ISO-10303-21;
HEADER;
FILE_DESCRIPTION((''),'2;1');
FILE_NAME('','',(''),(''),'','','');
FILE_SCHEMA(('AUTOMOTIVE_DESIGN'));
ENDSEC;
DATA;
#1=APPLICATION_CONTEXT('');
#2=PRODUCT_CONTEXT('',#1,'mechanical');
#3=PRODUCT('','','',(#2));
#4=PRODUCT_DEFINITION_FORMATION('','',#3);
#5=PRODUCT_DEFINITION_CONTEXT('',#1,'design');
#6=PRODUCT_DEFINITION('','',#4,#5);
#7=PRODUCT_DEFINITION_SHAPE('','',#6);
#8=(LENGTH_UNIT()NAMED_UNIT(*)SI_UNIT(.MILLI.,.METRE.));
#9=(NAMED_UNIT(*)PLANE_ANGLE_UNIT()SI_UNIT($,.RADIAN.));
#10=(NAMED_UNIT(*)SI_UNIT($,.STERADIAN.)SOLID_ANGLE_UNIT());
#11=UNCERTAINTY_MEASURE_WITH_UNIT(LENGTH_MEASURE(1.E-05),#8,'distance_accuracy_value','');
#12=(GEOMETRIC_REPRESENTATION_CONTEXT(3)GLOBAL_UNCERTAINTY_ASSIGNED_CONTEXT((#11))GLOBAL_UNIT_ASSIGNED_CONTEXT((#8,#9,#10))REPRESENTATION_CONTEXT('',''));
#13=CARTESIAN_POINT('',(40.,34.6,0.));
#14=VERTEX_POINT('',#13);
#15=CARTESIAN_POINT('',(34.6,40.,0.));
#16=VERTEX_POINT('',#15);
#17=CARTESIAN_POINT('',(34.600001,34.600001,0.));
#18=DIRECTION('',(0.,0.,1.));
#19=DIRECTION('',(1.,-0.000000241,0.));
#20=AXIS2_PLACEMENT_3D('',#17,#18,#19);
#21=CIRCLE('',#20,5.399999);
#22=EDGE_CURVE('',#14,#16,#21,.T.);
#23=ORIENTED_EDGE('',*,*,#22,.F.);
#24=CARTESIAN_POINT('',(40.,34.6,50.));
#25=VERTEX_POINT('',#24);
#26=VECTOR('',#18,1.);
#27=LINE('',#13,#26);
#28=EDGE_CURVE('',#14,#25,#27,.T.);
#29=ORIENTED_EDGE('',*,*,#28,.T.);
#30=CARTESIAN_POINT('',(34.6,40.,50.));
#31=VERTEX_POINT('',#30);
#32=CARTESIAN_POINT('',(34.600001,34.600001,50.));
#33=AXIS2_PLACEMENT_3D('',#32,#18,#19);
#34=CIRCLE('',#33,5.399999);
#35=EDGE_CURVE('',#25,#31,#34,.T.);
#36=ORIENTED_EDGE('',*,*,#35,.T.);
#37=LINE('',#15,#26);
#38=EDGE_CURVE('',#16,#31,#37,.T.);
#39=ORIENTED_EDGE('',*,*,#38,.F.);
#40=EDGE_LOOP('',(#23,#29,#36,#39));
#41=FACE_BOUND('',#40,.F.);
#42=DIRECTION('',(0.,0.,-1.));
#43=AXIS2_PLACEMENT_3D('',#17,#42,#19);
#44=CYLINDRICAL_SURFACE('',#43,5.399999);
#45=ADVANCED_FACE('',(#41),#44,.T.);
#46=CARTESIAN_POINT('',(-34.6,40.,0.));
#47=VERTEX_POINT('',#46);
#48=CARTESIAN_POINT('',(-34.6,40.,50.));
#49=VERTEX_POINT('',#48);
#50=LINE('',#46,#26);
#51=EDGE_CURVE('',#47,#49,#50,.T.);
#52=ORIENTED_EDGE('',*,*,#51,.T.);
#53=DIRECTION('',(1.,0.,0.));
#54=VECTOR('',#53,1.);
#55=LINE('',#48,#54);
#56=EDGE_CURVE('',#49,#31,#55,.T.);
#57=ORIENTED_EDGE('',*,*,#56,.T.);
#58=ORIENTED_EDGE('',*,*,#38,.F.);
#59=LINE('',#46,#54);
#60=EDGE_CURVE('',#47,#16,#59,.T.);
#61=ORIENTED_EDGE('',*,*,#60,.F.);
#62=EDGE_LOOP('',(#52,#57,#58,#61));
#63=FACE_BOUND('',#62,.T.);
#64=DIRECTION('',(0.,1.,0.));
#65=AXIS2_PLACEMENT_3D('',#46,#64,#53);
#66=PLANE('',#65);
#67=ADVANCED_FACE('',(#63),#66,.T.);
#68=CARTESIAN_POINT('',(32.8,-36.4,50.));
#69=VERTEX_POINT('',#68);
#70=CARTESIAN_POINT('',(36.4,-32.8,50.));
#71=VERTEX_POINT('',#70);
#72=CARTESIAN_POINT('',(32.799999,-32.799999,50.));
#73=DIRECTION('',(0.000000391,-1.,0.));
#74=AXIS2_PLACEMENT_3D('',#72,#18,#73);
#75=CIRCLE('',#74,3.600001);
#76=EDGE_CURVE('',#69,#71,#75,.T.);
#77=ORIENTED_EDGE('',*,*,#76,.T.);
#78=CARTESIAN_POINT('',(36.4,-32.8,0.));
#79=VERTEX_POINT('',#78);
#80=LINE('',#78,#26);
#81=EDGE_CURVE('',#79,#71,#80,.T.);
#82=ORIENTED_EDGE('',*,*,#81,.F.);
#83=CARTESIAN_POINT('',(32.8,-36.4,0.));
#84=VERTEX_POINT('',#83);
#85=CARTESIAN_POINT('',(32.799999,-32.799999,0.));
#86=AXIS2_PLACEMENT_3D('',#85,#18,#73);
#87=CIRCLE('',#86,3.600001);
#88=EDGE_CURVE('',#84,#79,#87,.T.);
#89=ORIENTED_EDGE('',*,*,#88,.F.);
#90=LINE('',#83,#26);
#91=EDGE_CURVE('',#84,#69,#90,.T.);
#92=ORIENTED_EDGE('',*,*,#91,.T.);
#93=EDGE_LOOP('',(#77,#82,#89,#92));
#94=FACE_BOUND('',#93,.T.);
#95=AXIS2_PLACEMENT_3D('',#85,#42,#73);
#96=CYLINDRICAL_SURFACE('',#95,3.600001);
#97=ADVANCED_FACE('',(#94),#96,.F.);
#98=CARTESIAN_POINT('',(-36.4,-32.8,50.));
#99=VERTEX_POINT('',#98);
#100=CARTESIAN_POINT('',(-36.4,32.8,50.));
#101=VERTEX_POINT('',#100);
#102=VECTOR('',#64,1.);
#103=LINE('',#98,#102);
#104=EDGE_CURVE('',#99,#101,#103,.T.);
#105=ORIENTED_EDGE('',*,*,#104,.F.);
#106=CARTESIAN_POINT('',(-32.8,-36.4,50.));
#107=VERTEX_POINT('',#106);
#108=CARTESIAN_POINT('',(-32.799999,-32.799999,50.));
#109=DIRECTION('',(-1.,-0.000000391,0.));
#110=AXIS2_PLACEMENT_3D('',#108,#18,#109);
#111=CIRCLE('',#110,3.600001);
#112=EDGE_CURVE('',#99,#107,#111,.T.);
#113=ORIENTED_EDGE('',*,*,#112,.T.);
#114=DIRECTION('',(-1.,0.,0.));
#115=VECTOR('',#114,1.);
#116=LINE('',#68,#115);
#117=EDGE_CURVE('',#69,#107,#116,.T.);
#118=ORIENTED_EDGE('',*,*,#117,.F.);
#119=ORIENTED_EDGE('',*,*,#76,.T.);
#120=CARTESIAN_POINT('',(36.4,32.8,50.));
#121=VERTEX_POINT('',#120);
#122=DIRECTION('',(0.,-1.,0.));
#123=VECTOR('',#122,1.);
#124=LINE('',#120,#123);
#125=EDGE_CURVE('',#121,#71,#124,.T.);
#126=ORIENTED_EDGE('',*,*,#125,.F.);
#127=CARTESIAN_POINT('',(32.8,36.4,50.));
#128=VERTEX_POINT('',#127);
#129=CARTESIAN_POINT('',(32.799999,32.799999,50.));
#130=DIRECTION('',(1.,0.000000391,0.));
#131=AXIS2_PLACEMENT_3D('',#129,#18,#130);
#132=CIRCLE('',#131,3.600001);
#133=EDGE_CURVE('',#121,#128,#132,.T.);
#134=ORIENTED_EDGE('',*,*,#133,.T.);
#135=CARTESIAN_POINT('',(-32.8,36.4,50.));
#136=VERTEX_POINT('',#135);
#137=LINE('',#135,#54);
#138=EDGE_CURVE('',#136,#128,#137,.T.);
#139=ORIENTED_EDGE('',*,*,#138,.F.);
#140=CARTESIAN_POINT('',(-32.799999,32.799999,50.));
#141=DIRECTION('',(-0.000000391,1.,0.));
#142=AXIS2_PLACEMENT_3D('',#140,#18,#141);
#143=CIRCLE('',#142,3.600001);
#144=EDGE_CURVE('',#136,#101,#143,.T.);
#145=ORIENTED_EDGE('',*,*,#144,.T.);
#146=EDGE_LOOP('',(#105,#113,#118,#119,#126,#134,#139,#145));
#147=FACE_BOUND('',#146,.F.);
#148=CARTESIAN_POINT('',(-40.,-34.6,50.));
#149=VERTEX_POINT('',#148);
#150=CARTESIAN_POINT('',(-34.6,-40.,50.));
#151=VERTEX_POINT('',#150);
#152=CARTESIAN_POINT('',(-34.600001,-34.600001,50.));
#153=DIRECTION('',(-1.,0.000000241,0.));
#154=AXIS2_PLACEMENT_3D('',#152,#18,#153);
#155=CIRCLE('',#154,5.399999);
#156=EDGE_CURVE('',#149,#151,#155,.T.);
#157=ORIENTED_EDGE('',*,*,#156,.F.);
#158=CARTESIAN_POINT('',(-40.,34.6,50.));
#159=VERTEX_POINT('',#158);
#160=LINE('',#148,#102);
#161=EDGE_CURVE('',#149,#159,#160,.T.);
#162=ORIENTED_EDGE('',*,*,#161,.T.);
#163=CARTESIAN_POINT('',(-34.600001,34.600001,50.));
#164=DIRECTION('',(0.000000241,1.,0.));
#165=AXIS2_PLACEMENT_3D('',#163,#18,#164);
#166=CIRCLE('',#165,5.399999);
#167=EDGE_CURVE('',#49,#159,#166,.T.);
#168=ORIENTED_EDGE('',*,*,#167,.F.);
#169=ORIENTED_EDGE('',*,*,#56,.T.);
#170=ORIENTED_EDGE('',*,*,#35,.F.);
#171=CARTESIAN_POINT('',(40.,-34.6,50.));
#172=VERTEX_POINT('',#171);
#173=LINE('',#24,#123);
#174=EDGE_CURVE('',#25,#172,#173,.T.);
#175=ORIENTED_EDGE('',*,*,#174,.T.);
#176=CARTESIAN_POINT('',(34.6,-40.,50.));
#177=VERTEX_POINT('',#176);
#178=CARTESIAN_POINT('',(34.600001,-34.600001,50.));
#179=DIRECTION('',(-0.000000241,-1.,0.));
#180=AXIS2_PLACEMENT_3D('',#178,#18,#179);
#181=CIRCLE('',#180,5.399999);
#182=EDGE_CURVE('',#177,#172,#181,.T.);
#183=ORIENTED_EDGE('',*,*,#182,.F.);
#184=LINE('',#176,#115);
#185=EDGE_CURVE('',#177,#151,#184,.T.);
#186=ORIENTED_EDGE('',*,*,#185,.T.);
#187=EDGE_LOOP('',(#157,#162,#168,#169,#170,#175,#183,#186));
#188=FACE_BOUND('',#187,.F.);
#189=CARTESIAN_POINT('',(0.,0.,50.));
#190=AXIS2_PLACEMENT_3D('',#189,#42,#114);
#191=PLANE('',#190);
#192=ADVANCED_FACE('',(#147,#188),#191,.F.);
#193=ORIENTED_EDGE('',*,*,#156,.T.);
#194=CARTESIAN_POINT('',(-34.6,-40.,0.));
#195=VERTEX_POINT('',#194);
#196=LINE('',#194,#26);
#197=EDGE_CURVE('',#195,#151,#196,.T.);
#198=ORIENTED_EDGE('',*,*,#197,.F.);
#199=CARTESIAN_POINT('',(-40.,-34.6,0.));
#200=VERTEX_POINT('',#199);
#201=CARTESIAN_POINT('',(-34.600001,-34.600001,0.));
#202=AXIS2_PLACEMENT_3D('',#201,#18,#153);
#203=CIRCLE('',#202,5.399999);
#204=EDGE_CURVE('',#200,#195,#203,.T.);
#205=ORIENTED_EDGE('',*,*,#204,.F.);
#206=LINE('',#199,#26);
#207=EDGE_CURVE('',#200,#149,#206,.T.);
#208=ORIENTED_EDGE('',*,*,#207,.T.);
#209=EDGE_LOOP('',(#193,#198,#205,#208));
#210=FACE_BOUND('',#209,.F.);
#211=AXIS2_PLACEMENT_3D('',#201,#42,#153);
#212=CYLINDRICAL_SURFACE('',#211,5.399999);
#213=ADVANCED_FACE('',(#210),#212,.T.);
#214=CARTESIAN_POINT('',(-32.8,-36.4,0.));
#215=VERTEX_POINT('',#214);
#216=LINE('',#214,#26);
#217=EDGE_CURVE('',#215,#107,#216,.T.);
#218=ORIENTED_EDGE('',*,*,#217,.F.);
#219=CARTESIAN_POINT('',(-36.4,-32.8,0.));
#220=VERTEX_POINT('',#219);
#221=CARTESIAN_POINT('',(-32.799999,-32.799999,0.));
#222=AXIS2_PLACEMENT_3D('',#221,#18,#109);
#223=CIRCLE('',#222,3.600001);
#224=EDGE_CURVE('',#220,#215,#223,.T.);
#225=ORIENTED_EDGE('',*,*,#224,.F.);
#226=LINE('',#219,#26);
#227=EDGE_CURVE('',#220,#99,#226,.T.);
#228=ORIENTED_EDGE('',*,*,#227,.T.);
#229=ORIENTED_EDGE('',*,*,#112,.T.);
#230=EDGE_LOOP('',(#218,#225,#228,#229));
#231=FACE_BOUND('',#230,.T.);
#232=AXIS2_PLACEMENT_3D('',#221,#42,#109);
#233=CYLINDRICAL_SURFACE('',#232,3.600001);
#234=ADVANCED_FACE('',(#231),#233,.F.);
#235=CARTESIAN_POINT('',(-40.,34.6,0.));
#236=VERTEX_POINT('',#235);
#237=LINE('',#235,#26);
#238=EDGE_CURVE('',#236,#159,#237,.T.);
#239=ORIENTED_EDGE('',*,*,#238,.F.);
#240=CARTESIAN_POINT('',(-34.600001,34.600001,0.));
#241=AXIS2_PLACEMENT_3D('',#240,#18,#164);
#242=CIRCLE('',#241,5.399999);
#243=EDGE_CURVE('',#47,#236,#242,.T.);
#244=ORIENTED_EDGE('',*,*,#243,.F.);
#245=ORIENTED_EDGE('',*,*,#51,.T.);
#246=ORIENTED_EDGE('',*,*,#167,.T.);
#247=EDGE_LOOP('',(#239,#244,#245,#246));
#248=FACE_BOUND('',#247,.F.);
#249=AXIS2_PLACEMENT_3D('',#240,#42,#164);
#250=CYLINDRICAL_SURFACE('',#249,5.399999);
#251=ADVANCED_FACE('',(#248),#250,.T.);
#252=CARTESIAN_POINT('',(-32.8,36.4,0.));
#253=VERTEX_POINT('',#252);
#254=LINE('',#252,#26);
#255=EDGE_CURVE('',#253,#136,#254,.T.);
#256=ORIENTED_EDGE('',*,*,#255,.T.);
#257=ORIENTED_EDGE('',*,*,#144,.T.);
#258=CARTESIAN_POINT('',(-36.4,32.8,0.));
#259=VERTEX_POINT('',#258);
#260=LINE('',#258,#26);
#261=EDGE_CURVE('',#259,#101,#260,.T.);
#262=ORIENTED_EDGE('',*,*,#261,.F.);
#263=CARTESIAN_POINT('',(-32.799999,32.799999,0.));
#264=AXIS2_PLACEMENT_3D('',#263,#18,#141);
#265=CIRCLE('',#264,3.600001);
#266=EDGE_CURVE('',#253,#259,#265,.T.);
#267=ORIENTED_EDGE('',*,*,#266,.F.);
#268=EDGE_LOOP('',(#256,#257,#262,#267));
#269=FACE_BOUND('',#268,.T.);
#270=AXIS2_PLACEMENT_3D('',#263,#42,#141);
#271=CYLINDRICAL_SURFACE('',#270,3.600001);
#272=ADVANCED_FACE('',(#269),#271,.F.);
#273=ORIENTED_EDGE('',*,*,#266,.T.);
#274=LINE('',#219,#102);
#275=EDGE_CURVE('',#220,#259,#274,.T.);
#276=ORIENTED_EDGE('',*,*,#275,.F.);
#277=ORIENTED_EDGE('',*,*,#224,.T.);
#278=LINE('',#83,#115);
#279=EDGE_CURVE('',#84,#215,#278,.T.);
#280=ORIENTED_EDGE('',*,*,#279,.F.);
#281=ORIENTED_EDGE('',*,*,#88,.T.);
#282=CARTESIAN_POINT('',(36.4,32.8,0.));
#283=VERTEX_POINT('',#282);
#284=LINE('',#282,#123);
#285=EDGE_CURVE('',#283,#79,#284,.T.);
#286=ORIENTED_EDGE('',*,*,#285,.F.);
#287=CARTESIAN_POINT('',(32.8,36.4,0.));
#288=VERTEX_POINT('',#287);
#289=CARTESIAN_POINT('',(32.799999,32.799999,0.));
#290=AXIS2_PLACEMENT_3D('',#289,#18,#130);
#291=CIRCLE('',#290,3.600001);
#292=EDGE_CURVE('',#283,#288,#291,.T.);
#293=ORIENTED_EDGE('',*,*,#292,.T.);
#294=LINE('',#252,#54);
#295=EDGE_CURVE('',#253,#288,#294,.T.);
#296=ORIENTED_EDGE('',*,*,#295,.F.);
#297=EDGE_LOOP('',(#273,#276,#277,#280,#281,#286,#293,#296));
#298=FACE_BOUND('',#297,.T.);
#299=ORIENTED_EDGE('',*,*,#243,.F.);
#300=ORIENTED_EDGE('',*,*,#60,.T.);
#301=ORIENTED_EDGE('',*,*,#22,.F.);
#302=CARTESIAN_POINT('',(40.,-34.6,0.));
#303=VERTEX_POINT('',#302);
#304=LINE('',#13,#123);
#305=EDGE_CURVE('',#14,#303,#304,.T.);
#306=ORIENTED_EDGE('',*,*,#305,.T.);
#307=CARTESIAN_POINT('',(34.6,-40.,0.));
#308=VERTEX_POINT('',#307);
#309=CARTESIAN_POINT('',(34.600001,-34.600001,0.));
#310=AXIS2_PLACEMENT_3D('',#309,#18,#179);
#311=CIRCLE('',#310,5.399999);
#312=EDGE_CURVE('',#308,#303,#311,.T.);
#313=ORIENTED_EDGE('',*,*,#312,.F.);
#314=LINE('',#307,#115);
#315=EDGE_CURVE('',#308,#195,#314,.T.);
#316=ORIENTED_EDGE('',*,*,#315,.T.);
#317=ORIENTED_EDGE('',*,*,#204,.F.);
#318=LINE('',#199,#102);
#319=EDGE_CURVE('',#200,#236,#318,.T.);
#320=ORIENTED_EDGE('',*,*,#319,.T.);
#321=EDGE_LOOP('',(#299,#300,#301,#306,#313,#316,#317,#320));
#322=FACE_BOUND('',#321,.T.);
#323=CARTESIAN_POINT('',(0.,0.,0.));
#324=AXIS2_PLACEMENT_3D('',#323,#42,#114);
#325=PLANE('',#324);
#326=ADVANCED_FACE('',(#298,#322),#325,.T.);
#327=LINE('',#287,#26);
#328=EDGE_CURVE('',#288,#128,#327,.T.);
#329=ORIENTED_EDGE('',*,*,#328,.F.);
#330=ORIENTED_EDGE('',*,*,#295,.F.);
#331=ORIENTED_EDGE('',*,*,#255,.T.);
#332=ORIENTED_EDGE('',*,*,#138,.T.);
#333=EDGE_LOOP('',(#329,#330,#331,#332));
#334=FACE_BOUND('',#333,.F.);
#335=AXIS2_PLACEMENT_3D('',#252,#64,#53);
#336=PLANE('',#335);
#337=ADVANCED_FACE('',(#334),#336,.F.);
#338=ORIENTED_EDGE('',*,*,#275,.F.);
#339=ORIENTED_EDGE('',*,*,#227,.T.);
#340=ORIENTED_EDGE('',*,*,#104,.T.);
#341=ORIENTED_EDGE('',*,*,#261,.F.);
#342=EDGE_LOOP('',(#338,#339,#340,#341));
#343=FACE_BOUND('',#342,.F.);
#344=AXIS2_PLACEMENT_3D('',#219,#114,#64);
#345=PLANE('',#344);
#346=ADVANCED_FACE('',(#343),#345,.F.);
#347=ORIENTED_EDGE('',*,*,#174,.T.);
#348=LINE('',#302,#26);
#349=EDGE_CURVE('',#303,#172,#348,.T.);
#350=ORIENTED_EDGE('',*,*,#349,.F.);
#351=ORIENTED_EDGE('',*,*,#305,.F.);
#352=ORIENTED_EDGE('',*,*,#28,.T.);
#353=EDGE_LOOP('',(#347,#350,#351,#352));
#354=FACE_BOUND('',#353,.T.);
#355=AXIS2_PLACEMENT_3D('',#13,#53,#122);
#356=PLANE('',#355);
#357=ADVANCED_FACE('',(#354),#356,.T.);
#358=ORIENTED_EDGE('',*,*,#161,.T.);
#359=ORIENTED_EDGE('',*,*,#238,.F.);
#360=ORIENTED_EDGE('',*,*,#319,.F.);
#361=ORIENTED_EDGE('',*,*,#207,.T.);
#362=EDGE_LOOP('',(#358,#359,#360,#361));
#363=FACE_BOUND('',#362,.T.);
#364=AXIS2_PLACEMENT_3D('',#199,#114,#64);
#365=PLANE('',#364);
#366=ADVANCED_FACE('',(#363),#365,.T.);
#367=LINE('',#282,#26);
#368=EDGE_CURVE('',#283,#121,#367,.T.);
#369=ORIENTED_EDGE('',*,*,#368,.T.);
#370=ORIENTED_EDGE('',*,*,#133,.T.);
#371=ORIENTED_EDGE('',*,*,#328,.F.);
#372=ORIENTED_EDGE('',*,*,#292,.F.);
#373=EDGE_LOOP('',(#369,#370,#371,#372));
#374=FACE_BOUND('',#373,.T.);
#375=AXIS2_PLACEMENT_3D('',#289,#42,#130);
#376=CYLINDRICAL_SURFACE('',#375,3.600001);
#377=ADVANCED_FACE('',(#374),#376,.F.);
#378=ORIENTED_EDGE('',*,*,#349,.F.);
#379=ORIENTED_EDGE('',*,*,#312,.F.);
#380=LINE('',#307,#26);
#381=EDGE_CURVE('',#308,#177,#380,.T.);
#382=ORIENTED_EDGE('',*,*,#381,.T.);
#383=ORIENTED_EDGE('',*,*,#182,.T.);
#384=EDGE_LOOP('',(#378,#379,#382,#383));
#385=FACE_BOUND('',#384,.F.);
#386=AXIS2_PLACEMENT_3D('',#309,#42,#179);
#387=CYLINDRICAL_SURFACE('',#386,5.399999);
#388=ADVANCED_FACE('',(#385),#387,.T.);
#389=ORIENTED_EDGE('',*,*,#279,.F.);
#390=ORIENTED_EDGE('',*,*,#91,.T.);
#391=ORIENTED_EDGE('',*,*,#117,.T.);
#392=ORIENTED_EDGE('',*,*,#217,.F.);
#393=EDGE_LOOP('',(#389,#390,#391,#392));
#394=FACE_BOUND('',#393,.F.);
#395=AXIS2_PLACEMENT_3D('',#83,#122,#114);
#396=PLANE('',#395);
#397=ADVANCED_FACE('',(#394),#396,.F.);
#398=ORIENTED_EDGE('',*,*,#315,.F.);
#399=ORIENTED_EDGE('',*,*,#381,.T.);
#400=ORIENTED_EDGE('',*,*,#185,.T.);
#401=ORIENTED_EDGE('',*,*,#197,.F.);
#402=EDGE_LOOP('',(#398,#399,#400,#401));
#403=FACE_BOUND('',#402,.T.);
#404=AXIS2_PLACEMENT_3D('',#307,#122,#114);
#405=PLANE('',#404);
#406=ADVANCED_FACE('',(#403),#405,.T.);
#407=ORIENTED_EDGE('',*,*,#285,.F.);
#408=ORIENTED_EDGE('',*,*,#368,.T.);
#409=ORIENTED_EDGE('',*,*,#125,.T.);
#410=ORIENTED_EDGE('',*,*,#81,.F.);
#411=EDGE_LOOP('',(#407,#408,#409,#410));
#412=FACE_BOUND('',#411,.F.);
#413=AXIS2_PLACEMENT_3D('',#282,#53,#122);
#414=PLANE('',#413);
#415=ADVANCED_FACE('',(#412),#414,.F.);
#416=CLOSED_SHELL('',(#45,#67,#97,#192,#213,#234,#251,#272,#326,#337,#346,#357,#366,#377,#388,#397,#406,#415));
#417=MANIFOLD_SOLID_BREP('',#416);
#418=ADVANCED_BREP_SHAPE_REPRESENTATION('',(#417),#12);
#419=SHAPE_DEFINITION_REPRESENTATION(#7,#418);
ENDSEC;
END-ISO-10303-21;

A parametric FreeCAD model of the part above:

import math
import FreeCAD as App
import Part
import Sketcher
Q = App.Units.Quantity

doc = App.newDocument("Part")
body = doc.addObject("PartDesign::Body", "Body")

# Sketch on XY plane
sketch1 = doc.addObject("Sketcher::SketchObject", "Sketch")
body.addObject(sketch1)
sketch1.AttachmentSupport = (doc.XY_Plane, [""])
sketch1.MapMode = "FlatFace"
sketch1.addGeometry([
    Part.LineSegment(App.Vector(34.6, 40, 0), App.Vector(-34.6, 40, 0)),  # 0
    Part.ArcOfCircle(Part.Circle(App.Vector(-34.6, 34.6, 0), App.Vector(0, 0, 1), 5.4), math.radians(90), math.radians(180)),  # 1
    Part.LineSegment(App.Vector(-40, 34.6, 0), App.Vector(-40, -34.6, 0)),  # 2
    Part.ArcOfCircle(Part.Circle(App.Vector(-34.6, -34.6, 0), App.Vector(0, 0, 1), 5.4), math.radians(180), math.radians(270)),  # 3
    Part.LineSegment(App.Vector(-34.6, -40, 0), App.Vector(34.6, -40, 0)),  # 4
    Part.ArcOfCircle(Part.Circle(App.Vector(34.6, -34.6, 0), App.Vector(0, 0, 1), 5.4), math.radians(-90), math.radians(0)),  # 5
    Part.LineSegment(App.Vector(40, -34.6, 0), App.Vector(40, 34.6, 0)),  # 6
    Part.ArcOfCircle(Part.Circle(App.Vector(34.6, 34.6, 0), App.Vector(0, 0, 1), 5.4), math.radians(0), math.radians(90)),  # 7
    Part.LineSegment(App.Vector(-32.8, 36.4, 0), App.Vector(32.8, 36.4, 0)),  # 8
    Part.ArcOfCircle(Part.Circle(App.Vector(32.8, 32.8, 0), App.Vector(0, 0, 1), 3.6), math.radians(0), math.radians(90)),  # 9
    Part.LineSegment(App.Vector(36.4, 32.8, 0), App.Vector(36.4, -32.8, 0)),  # 10
    Part.ArcOfCircle(Part.Circle(App.Vector(32.8, -32.8, 0), App.Vector(0, 0, 1), 3.6), math.radians(-90), math.radians(0)),  # 11
    Part.LineSegment(App.Vector(32.8, -36.4, 0), App.Vector(-32.8, -36.4, 0)),  # 12
    Part.ArcOfCircle(Part.Circle(App.Vector(-32.8, -32.8, 0), App.Vector(0, 0, 1), 3.6), math.radians(-180), math.radians(-90)),  # 13
    Part.LineSegment(App.Vector(-36.4, -32.8, 0), App.Vector(-36.4, 32.8, 0)),  # 14
    Part.ArcOfCircle(Part.Circle(App.Vector(-32.8, 32.8, 0), App.Vector(0, 0, 1), 3.6), math.radians(90), math.radians(180)),  # 15
], False)
sketch1.addConstraint([
    Sketcher.Constraint("Tangent", 0, 2, 1, 1),
    Sketcher.Constraint("Tangent", 1, 2, 2, 1),
    Sketcher.Constraint("Tangent", 2, 2, 3, 1),
    Sketcher.Constraint("Tangent", 3, 2, 4, 1),
    Sketcher.Constraint("Tangent", 4, 2, 5, 1),
    Sketcher.Constraint("Tangent", 5, 2, 6, 1),
    Sketcher.Constraint("Tangent", 6, 2, 7, 1),
    Sketcher.Constraint("Tangent", 7, 2, 0, 1),
    Sketcher.Constraint("Tangent", 8, 2, 9, 2),
    Sketcher.Constraint("Tangent", 9, 1, 10, 1),
    Sketcher.Constraint("Tangent", 10, 2, 11, 2),
    Sketcher.Constraint("Tangent", 11, 1, 12, 1),
    Sketcher.Constraint("Tangent", 12, 2, 13, 2),
    Sketcher.Constraint("Tangent", 13, 1, 14, 1),
    Sketcher.Constraint("Tangent", 14, 2, 15, 2),
    Sketcher.Constraint("Tangent", 15, 1, 8, 1),
    Sketcher.Constraint("Horizontal", 0),
    Sketcher.Constraint("Vertical", 2),
    Sketcher.Constraint("Horizontal", 4),
    Sketcher.Constraint("Vertical", 6),
    Sketcher.Constraint("Horizontal", 8),
    Sketcher.Constraint("Vertical", 10),
    Sketcher.Constraint("Horizontal", 12),
    Sketcher.Constraint("Vertical", 14),
    Sketcher.Constraint("Equal", 1, 3),
    Sketcher.Constraint("Equal", 3, 5),
    Sketcher.Constraint("Equal", 5, 7),
    Sketcher.Constraint("Equal", 9, 11),
    Sketcher.Constraint("Equal", 11, 13),
    Sketcher.Constraint("Equal", 13, 15),
    Sketcher.Constraint("Symmetric", 1, 3, 5, 3, -1, 1),
    Sketcher.Constraint("Symmetric", 9, 3, 13, 3, -1, 1),
    Sketcher.Constraint("Equal", 4, 2),
    Sketcher.Constraint("Equal", 12, 10),
    Sketcher.Constraint("Radius", 1, Q("5.399999 mm")),
    Sketcher.Constraint("Radius", 9, Q("3.600001 mm")),
    Sketcher.Constraint("DistanceX", 0, 2, 0, 1, Q("69.2 mm")),
    Sketcher.Constraint("DistanceX", 8, 1, 8, 2, Q("65.6 mm")),
])
pad1 = doc.addObject("PartDesign::Pad", "Pad")
body.addObject(pad1)
pad1.Profile = sketch1
pad1.Length = 50

doc.recompute()
